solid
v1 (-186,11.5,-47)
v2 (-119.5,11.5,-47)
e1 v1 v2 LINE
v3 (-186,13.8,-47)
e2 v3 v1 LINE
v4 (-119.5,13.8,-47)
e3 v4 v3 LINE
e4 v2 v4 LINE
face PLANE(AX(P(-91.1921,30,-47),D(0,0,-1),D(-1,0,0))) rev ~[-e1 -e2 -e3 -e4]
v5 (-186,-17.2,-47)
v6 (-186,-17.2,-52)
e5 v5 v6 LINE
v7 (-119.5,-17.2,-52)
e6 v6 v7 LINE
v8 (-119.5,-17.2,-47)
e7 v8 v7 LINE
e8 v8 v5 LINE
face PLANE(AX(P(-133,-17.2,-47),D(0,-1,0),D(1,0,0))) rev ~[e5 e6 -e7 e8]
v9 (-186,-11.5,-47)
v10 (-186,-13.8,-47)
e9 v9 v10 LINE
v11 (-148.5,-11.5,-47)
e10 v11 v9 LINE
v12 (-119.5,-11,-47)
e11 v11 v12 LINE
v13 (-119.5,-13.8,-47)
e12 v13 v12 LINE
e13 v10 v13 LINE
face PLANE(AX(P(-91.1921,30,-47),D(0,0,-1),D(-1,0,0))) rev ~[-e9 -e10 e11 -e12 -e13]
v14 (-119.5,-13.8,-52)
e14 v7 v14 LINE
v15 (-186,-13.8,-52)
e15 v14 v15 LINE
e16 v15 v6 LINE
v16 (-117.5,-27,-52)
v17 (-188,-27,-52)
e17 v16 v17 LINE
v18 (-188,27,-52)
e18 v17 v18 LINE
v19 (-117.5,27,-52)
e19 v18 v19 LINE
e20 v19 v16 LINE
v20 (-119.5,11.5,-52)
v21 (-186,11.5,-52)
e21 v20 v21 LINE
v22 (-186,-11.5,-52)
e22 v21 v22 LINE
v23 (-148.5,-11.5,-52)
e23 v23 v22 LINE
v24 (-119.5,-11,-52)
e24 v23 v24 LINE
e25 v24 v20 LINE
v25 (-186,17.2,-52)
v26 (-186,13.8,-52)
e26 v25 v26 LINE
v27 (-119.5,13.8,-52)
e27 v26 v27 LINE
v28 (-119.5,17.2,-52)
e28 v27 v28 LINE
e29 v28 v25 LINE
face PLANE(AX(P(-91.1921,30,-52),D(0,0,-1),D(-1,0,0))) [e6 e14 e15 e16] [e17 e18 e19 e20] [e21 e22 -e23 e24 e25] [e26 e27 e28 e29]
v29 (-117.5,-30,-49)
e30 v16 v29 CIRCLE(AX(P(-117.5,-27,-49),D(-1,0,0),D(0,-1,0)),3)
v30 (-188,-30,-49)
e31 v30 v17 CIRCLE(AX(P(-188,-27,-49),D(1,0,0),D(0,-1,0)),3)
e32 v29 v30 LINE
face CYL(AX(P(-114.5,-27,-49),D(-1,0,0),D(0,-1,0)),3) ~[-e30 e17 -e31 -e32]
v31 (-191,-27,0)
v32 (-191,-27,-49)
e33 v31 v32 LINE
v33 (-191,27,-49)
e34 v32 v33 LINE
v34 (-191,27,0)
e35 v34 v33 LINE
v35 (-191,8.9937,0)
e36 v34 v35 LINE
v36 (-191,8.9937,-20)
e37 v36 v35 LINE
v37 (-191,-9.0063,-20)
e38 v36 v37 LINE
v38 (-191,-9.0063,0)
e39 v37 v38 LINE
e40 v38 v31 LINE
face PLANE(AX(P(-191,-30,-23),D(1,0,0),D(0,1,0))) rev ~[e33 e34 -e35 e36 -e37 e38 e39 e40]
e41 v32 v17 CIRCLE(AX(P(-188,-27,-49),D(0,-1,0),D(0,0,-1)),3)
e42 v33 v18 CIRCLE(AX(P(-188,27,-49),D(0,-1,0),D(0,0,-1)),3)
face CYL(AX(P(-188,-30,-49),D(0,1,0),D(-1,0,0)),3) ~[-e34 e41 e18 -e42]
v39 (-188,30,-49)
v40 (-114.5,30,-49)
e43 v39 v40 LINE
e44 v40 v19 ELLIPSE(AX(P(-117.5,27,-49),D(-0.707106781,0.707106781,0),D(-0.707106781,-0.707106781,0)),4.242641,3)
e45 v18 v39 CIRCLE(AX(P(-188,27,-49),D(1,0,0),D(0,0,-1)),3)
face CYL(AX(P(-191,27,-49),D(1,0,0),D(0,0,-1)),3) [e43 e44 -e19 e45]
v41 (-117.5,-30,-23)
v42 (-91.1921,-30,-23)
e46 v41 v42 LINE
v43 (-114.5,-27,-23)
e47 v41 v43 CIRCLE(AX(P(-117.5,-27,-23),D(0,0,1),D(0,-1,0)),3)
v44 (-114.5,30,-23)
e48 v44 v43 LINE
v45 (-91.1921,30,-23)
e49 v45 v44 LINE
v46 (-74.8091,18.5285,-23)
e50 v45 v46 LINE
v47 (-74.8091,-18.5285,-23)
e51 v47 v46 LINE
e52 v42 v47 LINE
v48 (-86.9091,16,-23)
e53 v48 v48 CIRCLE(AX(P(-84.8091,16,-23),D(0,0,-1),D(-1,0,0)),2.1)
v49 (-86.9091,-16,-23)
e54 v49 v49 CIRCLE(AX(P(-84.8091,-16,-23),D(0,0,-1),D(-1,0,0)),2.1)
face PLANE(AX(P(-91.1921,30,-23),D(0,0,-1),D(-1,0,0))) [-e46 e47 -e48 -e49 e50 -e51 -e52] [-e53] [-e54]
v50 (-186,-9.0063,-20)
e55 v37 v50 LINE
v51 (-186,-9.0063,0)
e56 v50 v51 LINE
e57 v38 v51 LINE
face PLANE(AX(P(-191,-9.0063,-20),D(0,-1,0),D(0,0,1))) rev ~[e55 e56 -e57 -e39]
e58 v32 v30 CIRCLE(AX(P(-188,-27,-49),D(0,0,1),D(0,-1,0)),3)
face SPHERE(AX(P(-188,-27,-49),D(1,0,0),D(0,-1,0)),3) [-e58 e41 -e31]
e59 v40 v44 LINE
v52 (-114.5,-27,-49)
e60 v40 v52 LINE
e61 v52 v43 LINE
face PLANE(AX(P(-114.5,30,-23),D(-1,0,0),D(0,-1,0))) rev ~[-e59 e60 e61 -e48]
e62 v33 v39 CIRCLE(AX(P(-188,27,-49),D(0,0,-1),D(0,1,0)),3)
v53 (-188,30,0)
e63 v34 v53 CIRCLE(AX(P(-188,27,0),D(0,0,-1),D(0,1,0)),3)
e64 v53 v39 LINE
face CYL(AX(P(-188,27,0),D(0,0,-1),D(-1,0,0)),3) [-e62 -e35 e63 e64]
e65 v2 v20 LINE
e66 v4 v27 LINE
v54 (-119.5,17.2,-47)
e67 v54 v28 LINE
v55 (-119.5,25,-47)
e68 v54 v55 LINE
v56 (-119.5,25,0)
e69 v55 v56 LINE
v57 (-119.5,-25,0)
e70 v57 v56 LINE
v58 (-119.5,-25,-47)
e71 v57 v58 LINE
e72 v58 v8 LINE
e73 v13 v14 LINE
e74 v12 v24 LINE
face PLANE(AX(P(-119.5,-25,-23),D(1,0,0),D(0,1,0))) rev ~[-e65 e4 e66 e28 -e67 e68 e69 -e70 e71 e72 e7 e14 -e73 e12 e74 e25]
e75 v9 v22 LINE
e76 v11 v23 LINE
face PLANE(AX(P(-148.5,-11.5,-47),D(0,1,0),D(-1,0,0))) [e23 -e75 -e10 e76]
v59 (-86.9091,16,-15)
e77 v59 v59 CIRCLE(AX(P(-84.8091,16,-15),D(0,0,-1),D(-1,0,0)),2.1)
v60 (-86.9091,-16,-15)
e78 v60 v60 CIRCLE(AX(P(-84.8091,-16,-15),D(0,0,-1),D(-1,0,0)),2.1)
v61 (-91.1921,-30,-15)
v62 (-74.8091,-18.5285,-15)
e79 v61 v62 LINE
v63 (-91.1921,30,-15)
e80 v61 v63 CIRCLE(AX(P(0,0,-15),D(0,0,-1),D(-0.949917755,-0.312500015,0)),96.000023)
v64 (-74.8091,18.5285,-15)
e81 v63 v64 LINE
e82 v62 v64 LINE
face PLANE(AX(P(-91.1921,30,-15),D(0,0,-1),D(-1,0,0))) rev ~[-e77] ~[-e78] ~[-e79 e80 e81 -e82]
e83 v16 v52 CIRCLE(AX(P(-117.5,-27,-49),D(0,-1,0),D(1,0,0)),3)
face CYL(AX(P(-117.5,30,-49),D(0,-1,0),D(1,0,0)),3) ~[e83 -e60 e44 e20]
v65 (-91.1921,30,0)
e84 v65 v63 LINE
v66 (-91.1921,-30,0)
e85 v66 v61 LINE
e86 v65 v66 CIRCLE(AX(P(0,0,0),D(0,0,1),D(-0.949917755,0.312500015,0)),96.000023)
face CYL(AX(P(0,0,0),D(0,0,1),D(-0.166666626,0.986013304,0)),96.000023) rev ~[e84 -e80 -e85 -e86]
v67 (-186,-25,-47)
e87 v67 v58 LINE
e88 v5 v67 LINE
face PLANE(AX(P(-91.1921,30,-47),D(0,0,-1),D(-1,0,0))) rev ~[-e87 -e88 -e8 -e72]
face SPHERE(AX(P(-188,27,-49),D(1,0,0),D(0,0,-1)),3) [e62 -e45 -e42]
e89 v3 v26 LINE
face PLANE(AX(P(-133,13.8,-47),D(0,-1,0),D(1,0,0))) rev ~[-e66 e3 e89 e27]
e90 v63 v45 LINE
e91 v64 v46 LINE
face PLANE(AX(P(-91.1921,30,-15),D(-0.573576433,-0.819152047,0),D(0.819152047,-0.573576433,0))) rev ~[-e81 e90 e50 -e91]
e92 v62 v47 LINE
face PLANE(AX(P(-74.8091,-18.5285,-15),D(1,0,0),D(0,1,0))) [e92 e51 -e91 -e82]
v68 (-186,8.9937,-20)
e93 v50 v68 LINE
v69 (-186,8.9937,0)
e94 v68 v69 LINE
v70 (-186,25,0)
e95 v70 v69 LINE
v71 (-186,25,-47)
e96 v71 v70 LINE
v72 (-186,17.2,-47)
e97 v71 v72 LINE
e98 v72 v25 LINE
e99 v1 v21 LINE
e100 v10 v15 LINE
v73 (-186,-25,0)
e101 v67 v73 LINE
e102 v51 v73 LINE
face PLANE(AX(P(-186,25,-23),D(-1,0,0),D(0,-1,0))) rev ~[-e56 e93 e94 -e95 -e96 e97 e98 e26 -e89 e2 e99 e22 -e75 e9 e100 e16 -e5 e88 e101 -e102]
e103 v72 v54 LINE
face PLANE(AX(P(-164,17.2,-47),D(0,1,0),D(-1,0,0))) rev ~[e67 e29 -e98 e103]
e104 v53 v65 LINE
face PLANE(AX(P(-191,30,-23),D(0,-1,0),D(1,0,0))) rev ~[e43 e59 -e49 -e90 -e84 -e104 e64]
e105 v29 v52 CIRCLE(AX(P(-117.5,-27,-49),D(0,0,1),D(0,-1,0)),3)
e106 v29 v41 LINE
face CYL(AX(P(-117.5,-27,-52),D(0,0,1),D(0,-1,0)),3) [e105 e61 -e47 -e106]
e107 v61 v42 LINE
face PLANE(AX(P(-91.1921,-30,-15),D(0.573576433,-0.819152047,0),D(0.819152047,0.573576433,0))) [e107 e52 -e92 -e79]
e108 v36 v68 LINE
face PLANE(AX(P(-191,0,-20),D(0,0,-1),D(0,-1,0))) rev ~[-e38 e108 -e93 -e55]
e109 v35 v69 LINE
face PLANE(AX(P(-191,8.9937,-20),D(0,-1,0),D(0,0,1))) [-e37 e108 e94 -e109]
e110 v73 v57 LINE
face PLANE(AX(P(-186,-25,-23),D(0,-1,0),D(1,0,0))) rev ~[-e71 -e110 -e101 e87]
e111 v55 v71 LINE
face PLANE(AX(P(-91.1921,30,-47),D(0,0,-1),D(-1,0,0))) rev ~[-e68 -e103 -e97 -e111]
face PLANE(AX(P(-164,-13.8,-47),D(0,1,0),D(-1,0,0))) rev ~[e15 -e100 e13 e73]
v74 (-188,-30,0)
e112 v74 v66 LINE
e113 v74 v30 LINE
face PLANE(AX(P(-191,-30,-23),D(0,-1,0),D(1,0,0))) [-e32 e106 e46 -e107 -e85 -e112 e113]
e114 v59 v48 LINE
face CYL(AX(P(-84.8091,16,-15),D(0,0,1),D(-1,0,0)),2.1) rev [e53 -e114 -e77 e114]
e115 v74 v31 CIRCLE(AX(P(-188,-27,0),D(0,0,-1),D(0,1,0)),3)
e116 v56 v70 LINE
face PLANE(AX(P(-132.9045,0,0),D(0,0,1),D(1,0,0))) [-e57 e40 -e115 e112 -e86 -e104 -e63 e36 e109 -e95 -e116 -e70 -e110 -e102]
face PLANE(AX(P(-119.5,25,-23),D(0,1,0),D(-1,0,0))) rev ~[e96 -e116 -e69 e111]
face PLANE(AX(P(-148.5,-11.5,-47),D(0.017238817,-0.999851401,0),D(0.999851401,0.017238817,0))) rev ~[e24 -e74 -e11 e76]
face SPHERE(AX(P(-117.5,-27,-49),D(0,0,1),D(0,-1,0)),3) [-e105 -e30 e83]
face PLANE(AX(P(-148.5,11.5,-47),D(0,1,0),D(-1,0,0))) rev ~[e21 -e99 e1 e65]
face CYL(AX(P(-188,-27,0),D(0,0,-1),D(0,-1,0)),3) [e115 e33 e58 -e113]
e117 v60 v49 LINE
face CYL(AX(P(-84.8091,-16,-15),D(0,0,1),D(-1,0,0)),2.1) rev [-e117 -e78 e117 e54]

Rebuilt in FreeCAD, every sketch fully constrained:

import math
import FreeCAD as App
import Part
import Sketcher
Q = App.Units.Quantity


def edges_at(feature, points):
    """Names of the edges that pass closest to the given points."""
    edges = feature.Shape.Edges
    near = lambda p: min(range(len(edges)), key=lambda i: edges[i].distToShape(Part.Vertex(*p))[0])
    return sorted({f"Edge{near(p) + 1}" for p in points})


def add_polygon(sketch, points):
    """Adds a closed chain of lines whose ends are joined by coincident constraints."""
    first, n = sketch.GeometryCount, len(points)
    for a, b in zip(points, points[1:] + points[:1]):
        sketch.addGeometry(Part.LineSegment(App.Vector(*a, 0), App.Vector(*b, 0)), False)
    for i in range(n):
        sketch.addConstraint(Sketcher.Constraint("Coincident", first + i, 2, first + (i + 1) % n, 1))

doc = App.newDocument("Part")
body = doc.addObject("PartDesign::Body", "Body")

# Sketch on XY plane
sketch1 = body.newObject("Sketcher::SketchObject", "Sketch")
sketch1.AttachmentSupport = (doc.getObject("XY_Plane"), [""])
sketch1.MapMode = "FlatFace"
sketch1.addGeometry(Part.LineSegment(App.Vector(-91, 30, 0), App.Vector(-191, 30, 0)), False)
sketch1.addGeometry(Part.LineSegment(App.Vector(-191, 30, 0), App.Vector(-191, -30, 0)), False)
sketch1.addGeometry(Part.LineSegment(App.Vector(-191, -30, 0), App.Vector(-91, -30, 0)), False)
sketch1.addGeometry(Part.ArcOfCircle(Part.Circle(App.Vector(0, 0, 0), App.Vector(0, 0, 1), 96), math.radians(162), math.radians(198)), False)
sketch1.addConstraint(Sketcher.Constraint("Coincident", 0, 2, 1, 1))
sketch1.addConstraint(Sketcher.Constraint("Coincident", 1, 2, 2, 1))
sketch1.addConstraint(Sketcher.Constraint("Coincident", 2, 2, 3, 2))
sketch1.addConstraint(Sketcher.Constraint("Coincident", 3, 1, 0, 1))
sketch1.addConstraint(Sketcher.Constraint("Horizontal", 0))
sketch1.addConstraint(Sketcher.Constraint("Vertical", 1))
sketch1.addConstraint(Sketcher.Constraint("Horizontal", 2))
sketch1.addConstraint(Sketcher.Constraint("Coincident", 3, 3, -1, 1))
sketch1.addConstraint(Sketcher.Constraint("Vertical", 2, 2, 3, 1))
sketch1.addConstraint(Sketcher.Constraint("DistanceY", 1, 2, 1, 1, 60.0))
sketch1.addConstraint(Sketcher.Constraint("Radius", 3, 96.0))
sketch1.addConstraint(Sketcher.Constraint("DistanceX", 0, 2, -1, 1, 191.0))
pad1 = body.newObject("PartDesign::Pad", "Pad")
pad1.Profile = sketch1
pad1.Length = 15
pad1.Reversed = True

# Sketch on XY plane
sketch2 = body.newObject("Sketcher::SketchObject", "Sketch001")
sketch2.AttachmentSupport = (doc.getObject("XY_Plane"), [""])
sketch2.MapMode = "FlatFace"
sketch2.AttachmentOffset = App.Placement(App.Vector(0, 0, -15), App.Rotation())
add_polygon(sketch2, [(-191, 30), (-91.2, 30), (-74.8, 18.5), (-74.8, -18.5), (-91.2, -30), (-191, -30)])  # lines 0-5
sketch2.addGeometry(Part.Circle(App.Vector(-84.8, 16, 0), App.Vector(0, 0, 1), 2.1), False)  # 6
sketch2.addGeometry(Part.Circle(App.Vector(-84.8, -16, 0), App.Vector(0, 0, 1), 2.1), False)  # 7
sketch2.addConstraint(Sketcher.Constraint("Horizontal", 0))
sketch2.addConstraint(Sketcher.Constraint("Vertical", 2))
sketch2.addConstraint(Sketcher.Constraint("Horizontal", 4))
sketch2.addConstraint(Sketcher.Constraint("Vertical", 5))
sketch2.addConstraint(Sketcher.Constraint("Equal", 6, 7))
sketch2.addConstraint(Sketcher.Constraint("Symmetric", 6, 3, 7, 3, -1))
sketch2.addConstraint(Sketcher.Constraint("Symmetric", 0, 2, 3, 2, -1))
sketch2.addConstraint(Sketcher.Constraint("Equal", 1, 3))
sketch2.addConstraint(Sketcher.Constraint("Diameter", 6, 4.2))
sketch2.addConstraint(Sketcher.Constraint("Angle", 3, Q("-145 deg")))
sketch2.addConstraint(Sketcher.Constraint("Distance", 1, 20.0))
sketch2.addConstraint(Sketcher.Constraint("DistanceY", 6, 3, 0, 2, 14.0))
sketch2.addConstraint(Sketcher.Constraint("DistanceX", 6, 3, 1, 2, 10.0))
sketch2.addConstraint(Sketcher.Constraint("DistanceY", 5, 1, 5, 2, 60.0))
sketch2.addConstraint(Sketcher.Constraint("DistanceX", 4, 2, -1, 1, 191.0))
sketch2.addConstraint(Sketcher.Constraint("DistanceX", 0, 1, 0, 2, 99.808))
pad2 = body.newObject("PartDesign::Pad", "Pad001")
pad2.Profile = sketch2
pad2.Length = 8
pad2.Reversed = True

# Sketch on XY plane
sketch3 = body.newObject("Sketcher::SketchObject", "Sketch002")
sketch3.AttachmentSupport = (doc.getObject("XY_Plane"), [""])
sketch3.MapMode = "FlatFace"
sketch3.AttachmentOffset = App.Placement(App.Vector(0, 0, -23), App.Rotation())
add_polygon(sketch3, [(-114, -30), (-191, -30), (-191, 30), (-114, 30)])  # lines 0-3
add_polygon(sketch3, [(-186, -25), (-120, -25), (-120, 25), (-186, 25)])  # lines 4-7
sketch3.addConstraint(Sketcher.Constraint("Horizontal", 0))
sketch3.addConstraint(Sketcher.Constraint("Vertical", 1))
sketch3.addConstraint(Sketcher.Constraint("Horizontal", 2))
sketch3.addConstraint(Sketcher.Constraint("Vertical", 3))
sketch3.addConstraint(Sketcher.Constraint("Horizontal", 4))
sketch3.addConstraint(Sketcher.Constraint("Vertical", 5))
sketch3.addConstraint(Sketcher.Constraint("Horizontal", 6))
sketch3.addConstraint(Sketcher.Constraint("Vertical", 7))
sketch3.addConstraint(Sketcher.Constraint("DistanceY", 0, 2, -1, 1, 30.0))
sketch3.addConstraint(Sketcher.Constraint("DistanceY", -1, 1, 1, 2, 30.0))
sketch3.addConstraint(Sketcher.Constraint("DistanceX", 4, 2, 3, 2, 5.0))
sketch3.addConstraint(Sketcher.Constraint("DistanceY", 3, 2, 4, 2, 5.0))
sketch3.addConstraint(Sketcher.Constraint("DistanceY", 5, 2, 2, 2, 5.0))
sketch3.addConstraint(Sketcher.Constraint("DistanceX", 1, 2, 6, 2, 5.0))
sketch3.addConstraint(Sketcher.Constraint("DistanceX", 0, 2, 0, 1, 76.5))
sketch3.addConstraint(Sketcher.Constraint("DistanceX", 0, 2, -1, 1, 191.0))
pad3 = body.newObject("PartDesign::Pad", "Pad002")
pad3.Profile = sketch3
pad3.Length = 24
pad3.Reversed = True

# Sketch on XY plane
sketch4 = body.newObject("Sketcher::SketchObject", "Sketch003")
sketch4.AttachmentSupport = (doc.getObject("XY_Plane"), [""])
sketch4.MapMode = "FlatFace"
sketch4.AttachmentOffset = App.Placement(App.Vector(0, 0, -47), App.Rotation())
sketch4.addGeometry(Part.Circle(App.Vector(-133, -15.5, 0), App.Vector(0, 0, 1), 1.5), False)
sketch4.addGeometry(Part.Circle(App.Vector(-164, 15.5, 0), App.Vector(0, 0, 1), 1.5), False)
sketch4.addGeometry(Part.Circle(App.Vector(-164, -15.5, 0), App.Vector(0, 0, 1), 1.5), False)
sketch4.addGeometry(Part.Circle(App.Vector(-148.5, 0, 0), App.Vector(0, 0, 1), 11), False)
sketch4.addConstraint(Sketcher.Constraint("Equal", 0, 1))
sketch4.addConstraint(Sketcher.Constraint("Equal", 1, 2))
sketch4.addConstraint(Sketcher.Constraint("Symmetric", 1, 3, 2, 3, -1))
sketch4.addConstraint(Sketcher.Constraint("PointOnObject", 3, 3, -1))
sketch4.addConstraint(Sketcher.Constraint("Horizontal", 0, 3, 2, 3))
sketch4.addConstraint(Sketcher.Constraint("Diameter", 0, 3.0))
sketch4.addConstraint(Sketcher.Constraint("Diameter", 3, 22.0))
sketch4.addConstraint(Sketcher.Constraint("DistanceX", 0, 3, -1, 1, 133.0))
sketch4.addConstraint(Sketcher.Constraint("DistanceX", 1, 3, -1, 1, 164.0))
sketch4.addConstraint(Sketcher.Constraint("DistanceY", 0, 3, 1, 3, 31.0))
sketch4.addConstraint(Sketcher.Constraint("DistanceX", 3, 3, -1, 1, 148.5))
pocket1 = body.newObject("PartDesign::Pocket", "Pocket")
pocket1.Profile = sketch4
pocket1.Type = "ThroughAll"
pocket1.Reversed = True

# Sketch on XY plane
sketch5 = body.newObject("Sketcher::SketchObject", "Sketch004")
sketch5.AttachmentSupport = (doc.getObject("XY_Plane"), [""])
sketch5.MapMode = "FlatFace"
sketch5.AttachmentOffset = App.Placement(App.Vector(0, 0, -23), App.Rotation())
add_polygon(sketch5, [(-119.5, 25), (-119.5, -25), (-186, -25), (-186, 25)])  # lines 0-3
sketch5.addGeometry(Part.Circle(App.Vector(-133, -15.5, 0), App.Vector(0, 0, 1), 1.5), False)  # 4
sketch5.addGeometry(Part.Circle(App.Vector(-164, -15.5, 0), App.Vector(0, 0, 1), 1.5), False)  # 5
sketch5.addGeometry(Part.Circle(App.Vector(-148.5, 0, 0), App.Vector(0, 0, 1), 11), False)  # 6
sketch5.addGeometry(Part.Circle(App.Vector(-164, 15.5, 0), App.Vector(0, 0, 1), 1.5), False)  # 7
sketch5.addConstraint(Sketcher.Constraint("Vertical", 0))
sketch5.addConstraint(Sketcher.Constraint("Horizontal", 1))
sketch5.addConstraint(Sketcher.Constraint("Vertical", 2))
sketch5.addConstraint(Sketcher.Constraint("Horizontal", 3))
sketch5.addConstraint(Sketcher.Constraint("Equal", 4, 5))
sketch5.addConstraint(Sketcher.Constraint("Equal", 5, 7))
sketch5.addConstraint(Sketcher.Constraint("Symmetric", 5, 3, 7, 3, -1))
sketch5.addConstraint(Sketcher.Constraint("PointOnObject", 6, 3, -1))
sketch5.addConstraint(Sketcher.Constraint("Horizontal", 4, 3, 5, 3))
sketch5.addConstraint(Sketcher.Constraint("Diameter", 4, 3.0))
sketch5.addConstraint(Sketcher.Constraint("Diameter", 6, 22.0))
sketch5.addConstraint(Sketcher.Constraint("DistanceY", 0, 2, 0, 1, 50.0))
sketch5.addConstraint(Sketcher.Constraint("DistanceX", 1, 2, 1, 1, 66.5))
sketch5.addConstraint(Sketcher.Constraint("DistanceX", 4, 3, -1, 1, 133.0))
sketch5.addConstraint(Sketcher.Constraint("DistanceX", 5, 3, -1, 1, 164.0))
sketch5.addConstraint(Sketcher.Constraint("DistanceY", 0, 2, -1, 1, 25.0))
sketch5.addConstraint(Sketcher.Constraint("DistanceX", 1, 2, -1, 1, 186.0))
sketch5.addConstraint(Sketcher.Constraint("DistanceY", 5, 3, 7, 3, 31.0))
sketch5.addConstraint(Sketcher.Constraint("DistanceX", 6, 3, 0, 2, 29.0))
pocket2 = body.newObject("PartDesign::Pocket", "Pocket001")
pocket2.Profile = sketch5
pocket2.Type = "ThroughAll"
pocket2.Reversed = True

# Sketch on XY plane
sketch6 = body.newObject("Sketcher::SketchObject", "Sketch005")
sketch6.AttachmentSupport = (doc.getObject("XY_Plane"), [""])
sketch6.MapMode = "FlatFace"
sketch6.AttachmentOffset = App.Placement(App.Vector(0, 0, -47), App.Rotation())
add_polygon(sketch6, [(-114.5, 30), (-114.5, -30), (-191, -30), (-191, 30)])  # lines 0-3
add_polygon(sketch6, [(-186, -13.8), (-186, -17.2), (-119.5, -17.2), (-119.5, -13.8)])  # lines 4-7
add_polygon(sketch6, [(-186, 11.5), (-186, -11.5), (-148.5, -11.5), (-119.5, -11), (-119.5, 11.5)])  # lines 8-12
add_polygon(sketch6, [(-186, 17.2), (-186, 13.8), (-119.5, 13.8), (-119.5, 17.2)])  # lines 13-16
sketch6.addConstraint(Sketcher.Constraint("Vertical", 0))
sketch6.addConstraint(Sketcher.Constraint("Horizontal", 1))
sketch6.addConstraint(Sketcher.Constraint("Vertical", 2))
sketch6.addConstraint(Sketcher.Constraint("Horizontal", 3))
sketch6.addConstraint(Sketcher.Constraint("Vertical", 4))
sketch6.addConstraint(Sketcher.Constraint("Horizontal", 5))
sketch6.addConstraint(Sketcher.Constraint("Vertical", 6))
sketch6.addConstraint(Sketcher.Constraint("Horizontal", 7))
sketch6.addConstraint(Sketcher.Constraint("Vertical", 8))
sketch6.addConstraint(Sketcher.Constraint("Horizontal", 9))
sketch6.addConstraint(Sketcher.Constraint("Vertical", 11))
sketch6.addConstraint(Sketcher.Constraint("Horizontal", 12))
sketch6.addConstraint(Sketcher.Constraint("Vertical", 13))
sketch6.addConstraint(Sketcher.Constraint("Horizontal", 14))
sketch6.addConstraint(Sketcher.Constraint("Vertical", 15))
sketch6.addConstraint(Sketcher.Constraint("Horizontal", 16))
sketch6.addConstraint(Sketcher.Constraint("Symmetric", 7, 2, 13, 2, -1))
sketch6.addConstraint(Sketcher.Constraint("Symmetric", 5, 2, 15, 2, -1))
sketch6.addConstraint(Sketcher.Constraint("Vertical", 7, 2, 8, 2))
sketch6.addConstraint(Sketcher.Constraint("Vertical", 6, 2, 10, 2))
sketch6.addConstraint(Sketcher.Constraint("DistanceY", 9, 2, 10, 2, 0.5))
sketch6.addConstraint(Sketcher.Constraint("DistanceY", 0, 2, 0, 1, 60.0))
sketch6.addConstraint(Sketcher.Constraint("DistanceY", 8, 2, 8, 1, 23.0))
sketch6.addConstraint(Sketcher.Constraint("DistanceX", 1, 2, 1, 1, 76.5))
sketch6.addConstraint(Sketcher.Constraint("DistanceX", 5, 1, 5, 2, 66.5))
sketch6.addConstraint(Sketcher.Constraint("DistanceX", 9, 1, 9, 2, 37.5))
sketch6.addConstraint(Sketcher.Constraint("DistanceY", 4, 2, 4, 1, 3.4))
sketch6.addConstraint(Sketcher.Constraint("DistanceY", 0, 2, -1, 1, 30.0))
sketch6.addConstraint(Sketcher.Constraint("DistanceX", 1, 2, -1, 1, 191.0))
sketch6.addConstraint(Sketcher.Constraint("DistanceX", 4, 2, -1, 1, 186.0))
sketch6.addConstraint(Sketcher.Constraint("DistanceY", 10, 2, -1, 1, 11.0))
sketch6.addConstraint(Sketcher.Constraint("DistanceY", 4, 2, 13, 2, 31.0))
pad4 = body.newObject("PartDesign::Pad", "Pad003")
pad4.Profile = sketch6
pad4.Length = 5
pad4.Reversed = True
doc.recompute()

fillet = body.newObject("PartDesign::Fillet", "Fillet")
fillet.Base = (pad4, edges_at(pad4, [
    (-114.5, -30, -37.5),
    (-152.75, -30, -52),
    (-114.5, 0, -52),
    (-152.75, 30, -52),
    (-191, -30, -26),
    (-191, 0, -52),
    (-191, 30, -26),
]))
fillet.Radius = 3

# Sketch on YZ plane
sketch7 = body.newObject("Sketcher::SketchObject", "Sketch006")
sketch7.AttachmentSupport = (doc.getObject("YZ_Plane"), [""])
sketch7.MapMode = "FlatFace"
sketch7.AttachmentOffset = App.Placement(App.Vector(0, 0, -191), App.Rotation())
add_polygon(sketch7, [(-9, 0), (9, 0), (9, -20), (-9, -20)])  # lines 0-3
sketch7.addConstraint(Sketcher.Constraint("Horizontal", 0))
sketch7.addConstraint(Sketcher.Constraint("Vertical", 1))
sketch7.addConstraint(Sketcher.Constraint("Horizontal", 2))
sketch7.addConstraint(Sketcher.Constraint("Vertical", 3))
sketch7.addConstraint(Sketcher.Constraint("PointOnObject", 0, 2, -1))
sketch7.addConstraint(Sketcher.Constraint("DistanceX", 0, 1, 0, 2, 18.0))
sketch7.addConstraint(Sketcher.Constraint("DistanceY", 1, 2, 1, 1, 20.0))
sketch7.addConstraint(Sketcher.Constraint("DistanceX", -1, 1, 0, 2, 8.9937))
pocket3 = body.newObject("PartDesign::Pocket", "Pocket002")
pocket3.Profile = sketch7
pocket3.Length = 5
pocket3.Reversed = True

doc.recompute()
